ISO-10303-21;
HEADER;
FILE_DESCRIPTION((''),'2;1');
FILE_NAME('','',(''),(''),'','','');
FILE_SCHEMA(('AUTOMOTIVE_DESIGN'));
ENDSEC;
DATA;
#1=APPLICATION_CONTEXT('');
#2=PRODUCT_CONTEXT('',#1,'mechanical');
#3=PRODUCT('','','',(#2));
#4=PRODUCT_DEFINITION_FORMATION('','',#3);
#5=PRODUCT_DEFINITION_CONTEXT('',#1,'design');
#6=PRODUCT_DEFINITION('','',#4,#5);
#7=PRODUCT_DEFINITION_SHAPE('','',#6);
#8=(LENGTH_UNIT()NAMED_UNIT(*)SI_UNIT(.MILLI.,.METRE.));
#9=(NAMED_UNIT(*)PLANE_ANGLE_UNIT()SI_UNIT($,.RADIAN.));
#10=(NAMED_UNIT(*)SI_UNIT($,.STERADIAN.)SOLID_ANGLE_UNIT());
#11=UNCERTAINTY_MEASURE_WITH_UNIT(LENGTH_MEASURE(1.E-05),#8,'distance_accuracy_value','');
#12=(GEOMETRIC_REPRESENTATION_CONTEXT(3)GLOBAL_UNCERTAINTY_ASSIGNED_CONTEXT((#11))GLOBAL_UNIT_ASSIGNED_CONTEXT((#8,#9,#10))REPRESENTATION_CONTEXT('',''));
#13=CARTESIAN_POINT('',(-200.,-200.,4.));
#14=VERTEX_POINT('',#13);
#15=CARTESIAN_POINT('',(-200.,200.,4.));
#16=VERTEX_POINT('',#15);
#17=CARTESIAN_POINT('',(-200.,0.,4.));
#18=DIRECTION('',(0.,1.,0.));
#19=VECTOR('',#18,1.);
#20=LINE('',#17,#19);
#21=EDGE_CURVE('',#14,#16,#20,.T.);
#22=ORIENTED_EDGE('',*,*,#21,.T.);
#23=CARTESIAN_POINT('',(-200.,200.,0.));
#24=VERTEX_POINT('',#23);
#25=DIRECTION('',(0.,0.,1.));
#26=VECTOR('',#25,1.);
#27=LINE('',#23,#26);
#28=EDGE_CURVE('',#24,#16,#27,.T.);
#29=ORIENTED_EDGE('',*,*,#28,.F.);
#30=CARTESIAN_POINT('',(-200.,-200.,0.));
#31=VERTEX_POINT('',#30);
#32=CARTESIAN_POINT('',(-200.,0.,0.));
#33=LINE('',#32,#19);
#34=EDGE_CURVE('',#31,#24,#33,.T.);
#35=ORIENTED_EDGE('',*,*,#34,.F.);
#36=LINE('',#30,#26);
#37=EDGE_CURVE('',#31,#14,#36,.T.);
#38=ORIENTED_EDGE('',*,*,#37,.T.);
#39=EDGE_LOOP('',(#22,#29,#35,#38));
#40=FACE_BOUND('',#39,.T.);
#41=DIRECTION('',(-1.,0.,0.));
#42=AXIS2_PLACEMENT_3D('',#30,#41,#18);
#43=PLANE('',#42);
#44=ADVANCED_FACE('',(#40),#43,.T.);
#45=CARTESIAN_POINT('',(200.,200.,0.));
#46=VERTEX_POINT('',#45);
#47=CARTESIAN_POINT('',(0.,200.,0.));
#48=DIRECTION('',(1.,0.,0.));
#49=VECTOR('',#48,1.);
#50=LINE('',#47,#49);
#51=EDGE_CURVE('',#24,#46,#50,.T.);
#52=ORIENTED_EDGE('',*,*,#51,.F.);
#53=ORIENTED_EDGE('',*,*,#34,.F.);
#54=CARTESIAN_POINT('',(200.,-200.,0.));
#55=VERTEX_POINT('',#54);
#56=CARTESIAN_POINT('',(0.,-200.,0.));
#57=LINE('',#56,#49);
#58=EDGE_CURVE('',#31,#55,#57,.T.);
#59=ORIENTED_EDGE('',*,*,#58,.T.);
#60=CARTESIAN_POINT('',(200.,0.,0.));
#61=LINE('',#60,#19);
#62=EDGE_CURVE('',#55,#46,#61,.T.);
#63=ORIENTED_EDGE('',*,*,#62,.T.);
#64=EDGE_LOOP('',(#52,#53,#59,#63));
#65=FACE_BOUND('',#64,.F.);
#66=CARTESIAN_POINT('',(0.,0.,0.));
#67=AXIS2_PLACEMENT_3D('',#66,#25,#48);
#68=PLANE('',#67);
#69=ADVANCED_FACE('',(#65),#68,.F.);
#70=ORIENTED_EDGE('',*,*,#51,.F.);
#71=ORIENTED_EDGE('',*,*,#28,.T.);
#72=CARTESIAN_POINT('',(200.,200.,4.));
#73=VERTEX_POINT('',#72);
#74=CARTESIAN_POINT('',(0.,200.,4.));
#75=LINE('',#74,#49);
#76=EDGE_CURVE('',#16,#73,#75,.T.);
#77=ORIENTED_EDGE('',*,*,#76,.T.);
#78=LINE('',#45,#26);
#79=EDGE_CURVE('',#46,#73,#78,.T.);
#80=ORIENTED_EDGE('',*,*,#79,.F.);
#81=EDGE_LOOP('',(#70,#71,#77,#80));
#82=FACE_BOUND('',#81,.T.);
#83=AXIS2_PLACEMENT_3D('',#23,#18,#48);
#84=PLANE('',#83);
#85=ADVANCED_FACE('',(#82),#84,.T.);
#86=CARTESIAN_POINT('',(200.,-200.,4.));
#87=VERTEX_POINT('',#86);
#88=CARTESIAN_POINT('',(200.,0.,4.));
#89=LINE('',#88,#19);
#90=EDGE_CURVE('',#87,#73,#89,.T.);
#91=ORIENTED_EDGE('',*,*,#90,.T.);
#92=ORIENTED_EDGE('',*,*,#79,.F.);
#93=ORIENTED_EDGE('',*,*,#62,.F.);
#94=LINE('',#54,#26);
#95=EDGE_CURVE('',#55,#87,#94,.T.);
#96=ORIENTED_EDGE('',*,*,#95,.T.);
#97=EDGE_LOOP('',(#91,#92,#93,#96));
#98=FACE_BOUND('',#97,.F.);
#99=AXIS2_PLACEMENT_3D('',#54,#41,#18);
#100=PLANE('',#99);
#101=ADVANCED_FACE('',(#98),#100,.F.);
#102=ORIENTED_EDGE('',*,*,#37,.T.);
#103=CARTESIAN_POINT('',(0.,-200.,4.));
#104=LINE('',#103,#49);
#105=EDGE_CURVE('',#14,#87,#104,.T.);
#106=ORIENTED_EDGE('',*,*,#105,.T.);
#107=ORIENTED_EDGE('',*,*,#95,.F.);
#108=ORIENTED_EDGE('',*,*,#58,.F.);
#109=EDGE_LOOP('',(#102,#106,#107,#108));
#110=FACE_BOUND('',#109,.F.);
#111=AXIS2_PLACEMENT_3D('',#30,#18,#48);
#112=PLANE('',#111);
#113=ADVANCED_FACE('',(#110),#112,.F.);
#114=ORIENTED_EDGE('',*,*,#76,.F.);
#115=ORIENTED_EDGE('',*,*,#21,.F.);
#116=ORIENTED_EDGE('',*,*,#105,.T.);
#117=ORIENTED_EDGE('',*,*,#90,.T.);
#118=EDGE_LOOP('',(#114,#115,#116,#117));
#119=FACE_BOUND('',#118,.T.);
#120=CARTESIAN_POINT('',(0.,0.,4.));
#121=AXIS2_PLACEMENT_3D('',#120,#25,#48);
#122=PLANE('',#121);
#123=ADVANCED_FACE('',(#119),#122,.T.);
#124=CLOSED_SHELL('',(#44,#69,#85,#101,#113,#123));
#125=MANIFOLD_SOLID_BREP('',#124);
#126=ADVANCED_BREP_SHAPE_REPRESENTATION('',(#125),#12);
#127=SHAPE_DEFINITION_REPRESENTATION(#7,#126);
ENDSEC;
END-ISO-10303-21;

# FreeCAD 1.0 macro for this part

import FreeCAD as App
import Part
import Sketcher
Q = App.Units.Quantity

doc = App.newDocument("Part")
body = doc.addObject("PartDesign::Body", "Body")

# Sketch on XY plane
sketch1 = body.newObject("Sketcher::SketchObject", "Sketch")
sketch1.AttachmentSupport = (doc.getObject("XY_Plane"), [""])
sketch1.MapMode = "FlatFace"
sketch1.addGeometry([
    Part.LineSegment(App.Vector(-200, 200, 0), App.Vector(-200, -200, 0)),
    Part.LineSegment(App.Vector(-200, -200, 0), App.Vector(200, -200, 0)),
    Part.LineSegment(App.Vector(200, -200, 0), App.Vector(200, 200, 0)),
    Part.LineSegment(App.Vector(200, 200, 0), App.Vector(-200, 200, 0)),
], False)
sketch1.addConstraint([
    Sketcher.Constraint("Coincident", 0, 2, 1, 1),
    Sketcher.Constraint("Coincident", 1, 2, 2, 1),
    Sketcher.Constraint("Coincident", 2, 2, 3, 1),
    Sketcher.Constraint("Coincident", 3, 2, 0, 1),
    Sketcher.Constraint("Vertical", 0),
    Sketcher.Constraint("Horizontal", 1),
    Sketcher.Constraint("Vertical", 2),
    Sketcher.Constraint("Horizontal", 3),
    Sketcher.Constraint("Symmetric", 0, 2, 2, 2, -1, 1),
    Sketcher.Constraint("Equal", 3, 0),
    Sketcher.Constraint("DistanceX", 1, 1, 1, 2, Q("400 mm")),
])
pad1 = body.newObject("PartDesign::Pad", "Pad")
pad1.Profile = sketch1
pad1.Length = 4

doc.recompute()
